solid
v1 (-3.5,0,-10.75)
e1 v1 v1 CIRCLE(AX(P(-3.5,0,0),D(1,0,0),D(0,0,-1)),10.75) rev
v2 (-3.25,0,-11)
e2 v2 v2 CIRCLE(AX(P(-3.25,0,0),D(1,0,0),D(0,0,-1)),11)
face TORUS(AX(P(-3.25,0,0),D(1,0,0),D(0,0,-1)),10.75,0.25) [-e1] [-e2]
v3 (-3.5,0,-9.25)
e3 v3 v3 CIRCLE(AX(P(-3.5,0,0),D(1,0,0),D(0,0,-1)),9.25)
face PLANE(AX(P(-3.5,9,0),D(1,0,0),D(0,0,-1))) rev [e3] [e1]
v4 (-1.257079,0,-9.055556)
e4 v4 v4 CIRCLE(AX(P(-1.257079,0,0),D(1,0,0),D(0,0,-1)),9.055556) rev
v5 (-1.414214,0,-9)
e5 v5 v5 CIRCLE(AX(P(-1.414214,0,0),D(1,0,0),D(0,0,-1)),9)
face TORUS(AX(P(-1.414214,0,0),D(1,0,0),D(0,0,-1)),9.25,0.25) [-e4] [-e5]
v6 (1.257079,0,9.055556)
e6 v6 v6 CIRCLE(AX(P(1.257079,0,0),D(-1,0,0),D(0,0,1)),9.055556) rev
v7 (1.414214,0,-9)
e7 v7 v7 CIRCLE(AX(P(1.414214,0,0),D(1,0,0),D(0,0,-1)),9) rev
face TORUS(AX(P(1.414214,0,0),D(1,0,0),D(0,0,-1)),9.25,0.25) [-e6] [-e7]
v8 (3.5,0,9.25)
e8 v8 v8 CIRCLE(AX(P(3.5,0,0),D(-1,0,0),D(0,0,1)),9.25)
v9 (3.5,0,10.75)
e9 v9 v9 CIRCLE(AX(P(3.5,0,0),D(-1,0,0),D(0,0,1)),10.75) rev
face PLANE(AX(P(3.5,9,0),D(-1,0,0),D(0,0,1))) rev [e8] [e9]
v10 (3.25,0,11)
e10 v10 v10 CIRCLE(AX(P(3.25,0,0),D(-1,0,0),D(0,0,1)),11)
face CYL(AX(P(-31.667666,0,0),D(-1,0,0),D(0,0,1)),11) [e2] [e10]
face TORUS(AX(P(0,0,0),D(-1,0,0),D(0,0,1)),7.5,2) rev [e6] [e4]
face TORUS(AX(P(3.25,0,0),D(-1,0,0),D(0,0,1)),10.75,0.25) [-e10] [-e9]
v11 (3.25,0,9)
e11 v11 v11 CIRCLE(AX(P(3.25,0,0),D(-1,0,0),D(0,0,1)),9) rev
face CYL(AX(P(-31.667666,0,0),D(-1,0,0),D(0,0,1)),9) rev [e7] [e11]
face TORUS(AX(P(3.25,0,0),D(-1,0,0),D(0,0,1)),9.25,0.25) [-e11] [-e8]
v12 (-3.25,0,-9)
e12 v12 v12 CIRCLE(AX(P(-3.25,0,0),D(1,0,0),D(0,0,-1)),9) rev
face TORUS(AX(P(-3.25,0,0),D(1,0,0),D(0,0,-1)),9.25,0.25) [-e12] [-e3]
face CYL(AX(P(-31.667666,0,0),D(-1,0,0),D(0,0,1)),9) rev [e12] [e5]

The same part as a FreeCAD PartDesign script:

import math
import FreeCAD as App
import Part
import Sketcher
from FreeCAD import Vector
Q = App.Units.Quantity


def edges_at(feature, points):
    """Names of the edges that pass closest to the given points."""
    edges = feature.Shape.Edges
    near = lambda p: min(range(len(edges)), key=lambda i: edges[i].distToShape(Part.Vertex(*p))[0])
    return sorted({f"Edge{near(p) + 1}" for p in points})

doc = App.newDocument("Part")
body = doc.addObject("PartDesign::Body", "Body")

# Sketch on XY plane
sketch1 = doc.addObject("Sketcher::SketchObject", "Sketch")
body.addObject(sketch1)
sketch1.AttachmentSupport = (doc.XY_Plane, [""])
sketch1.MapMode = "FlatFace"
sketch1.addGeometry([
    Part.LineSegment(Vector(1.3, 9, 0), Vector(3.5, 9, 0)),  # 0
    Part.LineSegment(Vector(3.5, 9, 0), Vector(3.5, 11, 0)),  # 1
    Part.LineSegment(Vector(3.5, 11, 0), Vector(-3.5, 11, 0)),  # 2
    Part.LineSegment(Vector(-3.5, 11, 0), Vector(-3.5, 9, 0)),  # 3
    Part.LineSegment(Vector(-3.5, 9, 0), Vector(-1.3, 9, 0)),  # 4
    Part.ArcOfCircle(Part.Circle(Vector(0, 7.5, 0), Vector(0, 0, 1), 2), math.radians(49), math.radians(131)),  # 5
], False)
sketch1.addConstraint([
    Sketcher.Constraint("Coincident", 0, 2, 1, 1),
    Sketcher.Constraint("Coincident", 1, 2, 2, 1),
    Sketcher.Constraint("Coincident", 2, 2, 3, 1),
    Sketcher.Constraint("Coincident", 3, 2, 4, 1),
    Sketcher.Constraint("Coincident", 4, 2, 5, 2),
    Sketcher.Constraint("Coincident", 5, 1, 0, 1),
    Sketcher.Constraint("Horizontal", 0),
    Sketcher.Constraint("Vertical", 1),
    Sketcher.Constraint("Horizontal", 2),
    Sketcher.Constraint("Vertical", 3),
    Sketcher.Constraint("Horizontal", 4),
    Sketcher.Constraint("Symmetric", 0, 2, 3, 2, -2),
    Sketcher.Constraint("PointOnObject", 5, 3, -2),
    Sketcher.Constraint("Radius", 5, Q("2 mm")),
    Sketcher.Constraint("DistanceX", 2, 2, 2, 1, Q("7 mm")),
    Sketcher.Constraint("DistanceY", 1, 1, 1, 2, Q("2 mm")),
    Sketcher.Constraint("DistanceY", -1, 1, 0, 2, Q("9 mm")),
    Sketcher.Constraint("DistanceY", -1, 1, 5, 3, Q("7.5 mm")),
])
revolution = doc.addObject("PartDesign::Revolution", "Revolution")
body.addObject(revolution)
revolution.Profile = sketch1
revolution.ReferenceAxis = (sketch1, ["H_Axis"])
revolution.Angle = 360
doc.recompute()

fillet = doc.addObject("PartDesign::Fillet", "Fillet")
body.addObject(fillet)
fillet.Base = (revolution, edges_at(revolution, [
    (1.323, 0, -9),
    (3.5, 0, -9),
    (3.5, 0, -11),
    (-3.5, 0, -11),
    (-3.5, 0, -9),
    (-1.323, 0, -9),
]))
fillet.Radius = 0.25

doc.recompute()
